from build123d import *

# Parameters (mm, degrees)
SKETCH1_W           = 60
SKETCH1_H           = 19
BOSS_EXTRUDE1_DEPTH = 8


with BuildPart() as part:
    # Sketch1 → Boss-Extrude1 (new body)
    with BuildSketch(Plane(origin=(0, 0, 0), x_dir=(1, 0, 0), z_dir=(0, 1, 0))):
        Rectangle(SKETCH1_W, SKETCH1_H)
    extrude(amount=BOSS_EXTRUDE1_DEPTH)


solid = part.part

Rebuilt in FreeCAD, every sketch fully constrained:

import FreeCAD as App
import Part
import Sketcher
from FreeCAD import Vector
Q = App.Units.Quantity

doc = App.newDocument("Part")
body = doc.addObject("PartDesign::Body", "Body")

sketch1 = body.newObject("Sketcher::SketchObject", "Sketch")
sketch1.AttachmentSupport = (doc.getObject("XZ_Plane"), [""])
sketch1.MapMode = "FlatFace"
sketch1.addGeometry([
    Part.LineSegment(Vector(-30, -9.5, 0), Vector(-30, 9.5, 0)),
    Part.LineSegment(Vector(-30, 9.5, 0), Vector(30, 9.5, 0)),
    Part.LineSegment(Vector(30, 9.5, 0), Vector(30, -9.5, 0)),
    Part.LineSegment(Vector(30, -9.5, 0), Vector(-30, -9.5, 0)),
], False)
sketch1.addConstraint([
    Sketcher.Constraint("Coincident", 0, 2, 1, 1),
    Sketcher.Constraint("Coincident", 1, 2, 2, 1),
    Sketcher.Constraint("Coincident", 2, 2, 3, 1),
    Sketcher.Constraint("Coincident", 3, 2, 0, 1),
    Sketcher.Constraint("Vertical", 0),
    Sketcher.Constraint("Horizontal", 1),
    Sketcher.Constraint("Vertical", 2),
    Sketcher.Constraint("Horizontal", 3),
    Sketcher.Constraint("Symmetric", 0, 2, 2, 2, -1, 1),
    Sketcher.Constraint("DistanceX", 1, 1, 1, 2, Q("60 mm")),
    Sketcher.Constraint("DistanceY", 0, 1, 0, 2, Q("19 mm")),
])
pad1 = body.newObject("PartDesign::Pad", "Pad")
pad1.Profile = sketch1
pad1.Length = 8
pad1.Reversed = True

doc.recompute()
